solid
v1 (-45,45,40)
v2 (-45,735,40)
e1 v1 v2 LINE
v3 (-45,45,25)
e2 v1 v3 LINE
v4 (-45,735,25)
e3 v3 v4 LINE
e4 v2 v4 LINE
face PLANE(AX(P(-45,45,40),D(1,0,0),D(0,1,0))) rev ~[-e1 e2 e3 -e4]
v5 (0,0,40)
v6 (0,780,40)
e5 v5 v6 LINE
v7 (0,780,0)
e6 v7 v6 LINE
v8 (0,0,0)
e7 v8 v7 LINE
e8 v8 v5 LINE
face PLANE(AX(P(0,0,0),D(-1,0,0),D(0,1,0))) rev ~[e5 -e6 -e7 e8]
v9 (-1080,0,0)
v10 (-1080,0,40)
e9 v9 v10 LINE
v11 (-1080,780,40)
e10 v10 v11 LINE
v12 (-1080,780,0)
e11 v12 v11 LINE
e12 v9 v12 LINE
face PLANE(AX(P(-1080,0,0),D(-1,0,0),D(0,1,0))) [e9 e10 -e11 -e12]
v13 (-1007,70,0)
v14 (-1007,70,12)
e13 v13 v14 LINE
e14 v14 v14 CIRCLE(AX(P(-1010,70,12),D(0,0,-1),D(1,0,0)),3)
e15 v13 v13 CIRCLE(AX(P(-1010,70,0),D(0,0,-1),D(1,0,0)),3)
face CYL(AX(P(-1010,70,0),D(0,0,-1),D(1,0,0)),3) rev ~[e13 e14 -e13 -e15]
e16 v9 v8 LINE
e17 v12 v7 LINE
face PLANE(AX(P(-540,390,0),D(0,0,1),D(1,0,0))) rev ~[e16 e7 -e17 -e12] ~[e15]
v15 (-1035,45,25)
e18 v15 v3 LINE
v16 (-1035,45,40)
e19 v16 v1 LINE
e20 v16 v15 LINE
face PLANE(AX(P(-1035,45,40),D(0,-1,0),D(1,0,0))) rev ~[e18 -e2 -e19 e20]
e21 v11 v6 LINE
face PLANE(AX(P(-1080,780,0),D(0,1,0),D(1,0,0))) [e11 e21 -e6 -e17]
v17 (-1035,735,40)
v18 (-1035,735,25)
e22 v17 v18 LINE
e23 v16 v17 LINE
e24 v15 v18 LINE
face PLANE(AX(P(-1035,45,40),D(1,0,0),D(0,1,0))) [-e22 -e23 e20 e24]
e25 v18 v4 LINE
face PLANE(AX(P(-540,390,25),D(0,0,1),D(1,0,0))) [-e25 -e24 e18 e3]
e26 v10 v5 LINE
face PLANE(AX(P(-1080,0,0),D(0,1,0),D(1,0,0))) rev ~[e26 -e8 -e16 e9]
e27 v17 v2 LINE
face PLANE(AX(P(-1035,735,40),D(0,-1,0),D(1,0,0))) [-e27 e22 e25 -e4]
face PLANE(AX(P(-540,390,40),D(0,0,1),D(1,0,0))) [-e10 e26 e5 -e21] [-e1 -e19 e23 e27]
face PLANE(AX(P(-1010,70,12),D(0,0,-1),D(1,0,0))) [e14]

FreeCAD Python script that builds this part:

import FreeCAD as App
import Part
import Sketcher

V = App.Vector

doc = App.newDocument("Part")
body = doc.addObject("PartDesign::Body", "Body")

# Sketch on XY plane
sketch1 = doc.addObject("Sketcher::SketchObject", "Sketch")
body.addObject(sketch1)
sketch1.AttachmentSupport = (doc.XY_Plane, [""])
sketch1.MapMode = "FlatFace"
sketch1.addGeometry([
    Part.LineSegment(V(-1080, 780, 0), V(-1080, 0, 0)),
    Part.LineSegment(V(-1080, 0, 0), V(0, 0, 0)),
    Part.LineSegment(V(0, 0, 0), V(0, 780, 0)),
    Part.LineSegment(V(0, 780, 0), V(-1080, 780, 0)),
], False)
sketch1.addConstraint([
    Sketcher.Constraint("Coincident", 0, 2, 1, 1),
    Sketcher.Constraint("Coincident", 1, 2, 2, 1),
    Sketcher.Constraint("Coincident", 2, 2, 3, 1),
    Sketcher.Constraint("Coincident", 3, 2, 0, 1),
    Sketcher.Constraint("Vertical", 0),
    Sketcher.Constraint("Horizontal", 1),
    Sketcher.Constraint("Vertical", 2),
    Sketcher.Constraint("Horizontal", 3),
    Sketcher.Constraint("Coincident", 1, 2, -1, 1),
    Sketcher.Constraint("DistanceX", 1, 1, 1, 2, 1080.0),
    Sketcher.Constraint("DistanceY", 0, 2, 0, 1, 780.0),
])
pad1 = doc.addObject("PartDesign::Pad", "Pad")
body.addObject(pad1)
pad1.Profile = sketch1
pad1.Length = 40

# Sketch on XY plane
sketch2 = doc.addObject("Sketcher::SketchObject", "Sketch001")
body.addObject(sketch2)
sketch2.AttachmentSupport = (doc.XY_Plane, [""])
sketch2.MapMode = "FlatFace"
sketch2.addGeometry(Part.Circle(V(-1010, 70, 0), V(0, 0, 1), 3), False)
sketch2.addConstraint([
    Sketcher.Constraint("Diameter", 0, 6.0),
    Sketcher.Constraint("DistanceX", 0, 3, -1, 1, 1010.0),
    Sketcher.Constraint("DistanceY", -1, 1, 0, 3, 70.0),
])
pocket1 = doc.addObject("PartDesign::Pocket", "Pocket")
body.addObject(pocket1)
pocket1.Profile = sketch2
pocket1.Length = 12
pocket1.Reversed = True

# Sketch on XY plane
sketch3 = doc.addObject("Sketcher::SketchObject", "Sketch002")
body.addObject(sketch3)
sketch3.AttachmentSupport = (doc.XY_Plane, [""])
sketch3.MapMode = "FlatFace"
sketch3.AttachmentOffset = App.Placement(V(0, 0, 40), App.Rotation())
sketch3.addGeometry([
    Part.LineSegment(V(-1035, 735, 0), V(-1035, 45, 0)),
    Part.LineSegment(V(-1035, 45, 0), V(-45, 45, 0)),
    Part.LineSegment(V(-45, 45, 0), V(-45, 735, 0)),
    Part.LineSegment(V(-45, 735, 0), V(-1035, 735, 0)),
], False)
sketch3.addConstraint([
    Sketcher.Constraint("Coincident", 0, 2, 1, 1),
    Sketcher.Constraint("Coincident", 1, 2, 2, 1),
    Sketcher.Constraint("Coincident", 2, 2, 3, 1),
    Sketcher.Constraint("Coincident", 3, 2, 0, 1),
    Sketcher.Constraint("Vertical", 0),
    Sketcher.Constraint("Horizontal", 1),
    Sketcher.Constraint("Vertical", 2),
    Sketcher.Constraint("Horizontal", 3),
    Sketcher.Constraint("DistanceX", 1, 1, 1, 2, 990.0),
    Sketcher.Constraint("DistanceY", 0, 2, 0, 1, 690.0),
    Sketcher.Constraint("DistanceX", 0, 2, -1, 1, 1035.0),
    Sketcher.Constraint("DistanceY", -1, 1, 0, 2, 45.0),
])
pocket2 = doc.addObject("PartDesign::Pocket", "Pocket001")
body.addObject(pocket2)
pocket2.Profile = sketch3
pocket2.Length = 15

doc.recompute()
